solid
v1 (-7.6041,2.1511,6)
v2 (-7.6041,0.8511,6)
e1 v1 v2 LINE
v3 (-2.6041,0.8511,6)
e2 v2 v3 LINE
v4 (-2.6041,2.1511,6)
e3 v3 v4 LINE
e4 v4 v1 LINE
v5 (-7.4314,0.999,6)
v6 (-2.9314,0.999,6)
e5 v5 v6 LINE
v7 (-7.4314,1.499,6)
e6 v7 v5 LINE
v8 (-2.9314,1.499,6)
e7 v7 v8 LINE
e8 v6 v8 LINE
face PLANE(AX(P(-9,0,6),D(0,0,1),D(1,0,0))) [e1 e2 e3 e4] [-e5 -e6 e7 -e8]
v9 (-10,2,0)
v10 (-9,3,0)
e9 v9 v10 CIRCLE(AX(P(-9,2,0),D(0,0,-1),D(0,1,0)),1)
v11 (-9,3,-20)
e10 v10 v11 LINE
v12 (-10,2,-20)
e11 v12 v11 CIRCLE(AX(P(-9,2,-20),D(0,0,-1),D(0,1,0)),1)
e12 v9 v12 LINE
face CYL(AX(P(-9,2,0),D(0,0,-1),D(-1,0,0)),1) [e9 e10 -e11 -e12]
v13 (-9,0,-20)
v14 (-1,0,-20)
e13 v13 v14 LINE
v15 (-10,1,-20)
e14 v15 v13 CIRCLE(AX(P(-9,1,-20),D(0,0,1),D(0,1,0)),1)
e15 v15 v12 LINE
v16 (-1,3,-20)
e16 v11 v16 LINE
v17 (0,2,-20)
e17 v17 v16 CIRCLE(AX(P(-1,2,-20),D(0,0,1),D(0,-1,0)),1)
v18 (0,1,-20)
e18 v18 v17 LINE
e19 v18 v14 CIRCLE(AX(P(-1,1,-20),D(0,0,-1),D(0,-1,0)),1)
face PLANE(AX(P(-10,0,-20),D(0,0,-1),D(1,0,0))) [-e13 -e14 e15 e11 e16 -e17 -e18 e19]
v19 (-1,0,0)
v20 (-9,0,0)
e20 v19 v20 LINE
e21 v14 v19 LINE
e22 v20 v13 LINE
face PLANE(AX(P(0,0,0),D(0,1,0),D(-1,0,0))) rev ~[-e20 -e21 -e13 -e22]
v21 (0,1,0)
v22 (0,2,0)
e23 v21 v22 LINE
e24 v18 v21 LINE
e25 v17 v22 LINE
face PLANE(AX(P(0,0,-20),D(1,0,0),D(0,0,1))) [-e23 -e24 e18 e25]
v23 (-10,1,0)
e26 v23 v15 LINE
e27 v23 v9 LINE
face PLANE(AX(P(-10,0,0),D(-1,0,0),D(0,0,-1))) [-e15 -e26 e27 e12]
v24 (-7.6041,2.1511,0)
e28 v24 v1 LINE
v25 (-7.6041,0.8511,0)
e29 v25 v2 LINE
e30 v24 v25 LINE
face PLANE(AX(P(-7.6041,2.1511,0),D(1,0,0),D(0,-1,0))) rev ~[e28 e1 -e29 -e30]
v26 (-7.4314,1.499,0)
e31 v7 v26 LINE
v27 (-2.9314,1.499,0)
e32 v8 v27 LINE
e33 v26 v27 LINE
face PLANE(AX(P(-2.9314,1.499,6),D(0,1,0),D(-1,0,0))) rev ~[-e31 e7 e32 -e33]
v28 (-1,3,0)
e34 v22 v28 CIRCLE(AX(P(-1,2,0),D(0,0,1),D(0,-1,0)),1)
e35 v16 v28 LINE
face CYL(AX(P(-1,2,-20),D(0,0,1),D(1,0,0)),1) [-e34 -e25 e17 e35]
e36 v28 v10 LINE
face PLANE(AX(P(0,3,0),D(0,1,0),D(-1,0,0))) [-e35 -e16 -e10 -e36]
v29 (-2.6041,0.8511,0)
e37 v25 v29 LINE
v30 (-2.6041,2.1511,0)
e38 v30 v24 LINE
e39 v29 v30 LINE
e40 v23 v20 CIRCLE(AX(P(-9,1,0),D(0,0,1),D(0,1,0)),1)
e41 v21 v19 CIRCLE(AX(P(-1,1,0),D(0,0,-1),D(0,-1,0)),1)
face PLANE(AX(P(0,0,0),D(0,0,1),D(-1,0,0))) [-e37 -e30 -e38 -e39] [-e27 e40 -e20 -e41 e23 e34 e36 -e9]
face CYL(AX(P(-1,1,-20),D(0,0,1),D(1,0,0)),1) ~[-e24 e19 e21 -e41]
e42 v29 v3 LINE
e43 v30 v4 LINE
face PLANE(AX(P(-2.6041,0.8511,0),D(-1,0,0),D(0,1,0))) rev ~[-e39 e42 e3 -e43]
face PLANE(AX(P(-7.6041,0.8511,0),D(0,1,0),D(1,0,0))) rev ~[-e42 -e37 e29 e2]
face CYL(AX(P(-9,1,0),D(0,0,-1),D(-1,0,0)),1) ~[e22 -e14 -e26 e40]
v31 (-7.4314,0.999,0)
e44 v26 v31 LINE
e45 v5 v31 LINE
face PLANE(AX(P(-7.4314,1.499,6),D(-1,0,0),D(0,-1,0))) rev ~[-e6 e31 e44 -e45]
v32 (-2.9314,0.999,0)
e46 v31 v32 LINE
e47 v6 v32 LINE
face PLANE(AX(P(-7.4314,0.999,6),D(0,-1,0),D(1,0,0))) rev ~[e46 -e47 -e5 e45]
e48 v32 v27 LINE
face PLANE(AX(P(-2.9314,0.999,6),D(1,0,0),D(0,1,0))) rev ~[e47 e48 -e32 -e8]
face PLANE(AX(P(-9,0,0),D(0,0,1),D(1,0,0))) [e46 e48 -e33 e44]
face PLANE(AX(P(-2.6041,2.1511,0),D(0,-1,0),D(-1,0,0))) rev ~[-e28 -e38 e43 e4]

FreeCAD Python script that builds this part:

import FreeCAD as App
import Part
import Sketcher
from FreeCAD import Vector
Q = App.Units.Quantity


def edges_at(feature, points):
    """Names of the edges that pass closest to the given points."""
    edges = feature.Shape.Edges
    near = lambda p: min(range(len(edges)), key=lambda i: edges[i].distToShape(Part.Vertex(*p))[0])
    return sorted({f"Edge{near(p) + 1}" for p in points})

doc = App.newDocument("Part")
body = doc.addObject("PartDesign::Body", "Body")

sketch1 = body.newObject("Sketcher::SketchObject", "Sketch")
sketch1.AttachmentSupport = (doc.getObject("XZ_Plane"), [""])
sketch1.MapMode = "FlatFace"
sketch1.addGeometry([
    Part.LineSegment(Vector(-10, 0, 0), Vector(0, 0, 0)),
    Part.LineSegment(Vector(0, 0, 0), Vector(0, -20, 0)),
    Part.LineSegment(Vector(0, -20, 0), Vector(-10, -20, 0)),
    Part.LineSegment(Vector(-10, -20, 0), Vector(-10, 0, 0)),
], False)
sketch1.addConstraint([
    Sketcher.Constraint("Coincident", 0, 2, 1, 1),
    Sketcher.Constraint("Coincident", 1, 2, 2, 1),
    Sketcher.Constraint("Coincident", 2, 2, 3, 1),
    Sketcher.Constraint("Coincident", 3, 2, 0, 1),
    Sketcher.Constraint("Horizontal", 0),
    Sketcher.Constraint("Vertical", 1),
    Sketcher.Constraint("Horizontal", 2),
    Sketcher.Constraint("Vertical", 3),
    Sketcher.Constraint("Coincident", 0, 2, -1, 1),
    Sketcher.Constraint("DistanceX", 0, 1, 0, 2, Q("10 mm")),
    Sketcher.Constraint("DistanceY", 1, 2, 1, 1, Q("20 mm")),
])
pad1 = body.newObject("PartDesign::Pad", "Pad")
pad1.Profile = sketch1
pad1.Length = 3
pad1.Reversed = True
doc.recompute()

fillet = body.newObject("PartDesign::Fillet", "Fillet")
fillet.Base = (pad1, edges_at(pad1, [
    (-10, 3, -10),
    (0, 3, -10),
    (0, 0, -10),
    (-10, 0, -10),
]))
fillet.Radius = 1

sketch2 = body.newObject("Sketcher::SketchObject", "Sketch001")
sketch2.AttachmentSupport = (doc.getObject("XY_Plane"), [""])
sketch2.MapMode = "FlatFace"
sketch2.addGeometry([
    Part.LineSegment(Vector(-7.6, 2.2, 0), Vector(-7.6, 0.9, 0)),
    Part.LineSegment(Vector(-7.6, 0.9, 0), Vector(-2.6, 0.9, 0)),
    Part.LineSegment(Vector(-2.6, 0.9, 0), Vector(-2.6, 2.2, 0)),
    Part.LineSegment(Vector(-2.6, 2.2, 0), Vector(-7.6, 2.2, 0)),
], False)
sketch2.addConstraint([
    Sketcher.Constraint("Coincident", 0, 2, 1, 1),
    Sketcher.Constraint("Coincident", 1, 2, 2, 1),
    Sketcher.Constraint("Coincident", 2, 2, 3, 1),
    Sketcher.Constraint("Coincident", 3, 2, 0, 1),
    Sketcher.Constraint("Vertical", 0),
    Sketcher.Constraint("Horizontal", 1),
    Sketcher.Constraint("Vertical", 2),
    Sketcher.Constraint("Horizontal", 3),
    Sketcher.Constraint("DistanceX", 1, 1, 1, 2, Q("5 mm")),
    Sketcher.Constraint("DistanceY", 0, 2, 0, 1, Q("1.3 mm")),
    Sketcher.Constraint("DistanceX", 0, 2, -1, 1, Q("7.604 mm")),
    Sketcher.Constraint("DistanceY", -1, 1, 0, 2, Q("0.851 mm")),
])
pad2 = body.newObject("PartDesign::Pad", "Pad001")
pad2.Profile = sketch2
pad2.Length = 6

sketch3 = body.newObject("Sketcher::SketchObject", "Sketch002")
sketch3.AttachmentSupport = (doc.getObject("XY_Plane"), [""])
sketch3.MapMode = "FlatFace"
sketch3.AttachmentOffset = App.Placement(Vector(0, 0, 6), App.Rotation())
sketch3.addGeometry([
    Part.LineSegment(Vector(-2.9, 1, 0), Vector(-2.9, 1.5, 0)),
    Part.LineSegment(Vector(-2.9, 1.5, 0), Vector(-7.4, 1.5, 0)),
    Part.LineSegment(Vector(-7.4, 1.5, 0), Vector(-7.4, 1, 0)),
    Part.LineSegment(Vector(-7.4, 1, 0), Vector(-2.9, 1, 0)),
], False)
sketch3.addConstraint([
    Sketcher.Constraint("Coincident", 0, 2, 1, 1),
    Sketcher.Constraint("Coincident", 1, 2, 2, 1),
    Sketcher.Constraint("Coincident", 2, 2, 3, 1),
    Sketcher.Constraint("Coincident", 3, 2, 0, 1),
    Sketcher.Constraint("Vertical", 0),
    Sketcher.Constraint("Horizontal", 1),
    Sketcher.Constraint("Vertical", 2),
    Sketcher.Constraint("Horizontal", 3),
    Sketcher.Constraint("DistanceX", 1, 2, 1, 1, Q("4.5 mm")),
    Sketcher.Constraint("DistanceY", 0, 1, 0, 2, Q("0.5 mm")),
    Sketcher.Constraint("DistanceY", -1, 1, 0, 2, Q("1.499 mm")),
    Sketcher.Constraint("DistanceX", 0, 2, -1, 1, Q("2.9314 mm")),
])
pocket1 = body.newObject("PartDesign::Pocket", "Pocket")
pocket1.Profile = sketch3
pocket1.Length = 6

doc.recompute()
